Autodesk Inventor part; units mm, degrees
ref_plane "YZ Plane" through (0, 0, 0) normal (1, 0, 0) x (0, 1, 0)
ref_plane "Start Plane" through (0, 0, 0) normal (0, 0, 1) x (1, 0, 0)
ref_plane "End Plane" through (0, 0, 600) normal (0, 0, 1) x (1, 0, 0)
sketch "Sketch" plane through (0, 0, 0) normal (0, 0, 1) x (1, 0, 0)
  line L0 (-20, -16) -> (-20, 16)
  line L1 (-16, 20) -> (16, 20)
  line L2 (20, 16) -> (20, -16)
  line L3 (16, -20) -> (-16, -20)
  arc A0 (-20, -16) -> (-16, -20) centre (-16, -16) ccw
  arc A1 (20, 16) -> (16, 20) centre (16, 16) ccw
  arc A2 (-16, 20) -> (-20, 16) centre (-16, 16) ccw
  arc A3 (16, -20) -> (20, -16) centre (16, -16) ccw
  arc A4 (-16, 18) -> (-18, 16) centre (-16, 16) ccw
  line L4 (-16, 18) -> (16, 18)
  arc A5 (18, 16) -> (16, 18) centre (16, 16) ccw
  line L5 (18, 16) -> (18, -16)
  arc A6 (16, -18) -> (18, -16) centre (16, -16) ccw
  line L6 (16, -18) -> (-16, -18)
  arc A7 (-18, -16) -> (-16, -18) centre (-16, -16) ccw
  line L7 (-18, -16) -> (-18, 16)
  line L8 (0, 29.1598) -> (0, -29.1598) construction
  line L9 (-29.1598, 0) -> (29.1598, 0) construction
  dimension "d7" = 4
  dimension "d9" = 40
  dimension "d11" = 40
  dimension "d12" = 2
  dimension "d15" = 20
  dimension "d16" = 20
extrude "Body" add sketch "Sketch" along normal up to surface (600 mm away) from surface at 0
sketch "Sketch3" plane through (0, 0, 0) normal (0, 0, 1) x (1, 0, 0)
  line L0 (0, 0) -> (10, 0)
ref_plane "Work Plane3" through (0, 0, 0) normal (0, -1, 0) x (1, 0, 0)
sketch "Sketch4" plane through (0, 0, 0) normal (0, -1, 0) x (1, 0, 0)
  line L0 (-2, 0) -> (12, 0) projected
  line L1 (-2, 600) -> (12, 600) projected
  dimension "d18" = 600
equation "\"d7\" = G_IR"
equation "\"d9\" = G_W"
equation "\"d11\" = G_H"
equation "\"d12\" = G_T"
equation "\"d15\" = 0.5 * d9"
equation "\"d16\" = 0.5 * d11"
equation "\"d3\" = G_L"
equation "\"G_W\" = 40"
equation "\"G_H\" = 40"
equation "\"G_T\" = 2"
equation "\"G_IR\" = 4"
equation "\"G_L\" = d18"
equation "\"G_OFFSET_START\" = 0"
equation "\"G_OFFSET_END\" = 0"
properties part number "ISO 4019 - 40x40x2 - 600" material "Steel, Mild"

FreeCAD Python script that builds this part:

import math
import FreeCAD as App
import Part
import Sketcher
Q = App.Units.Quantity

doc = App.newDocument("Part")
params = doc.addObject("Spreadsheet::Sheet", "Params")
for row, (alias, value) in enumerate([
    ("sketch1_radius", "4 mm"),
    ("sketch1_radius2", "2 mm"),
    ("pad1_length", "600 mm"),
], start=1):
    params.set(f"A{row}", alias)
    params.set(f"B{row}", "=" + value)
    params.setAlias(f"B{row}", alias)

body = doc.addObject("PartDesign::Body", "Body")

# Sketch on XY plane
sketch1 = body.newObject("Sketcher::SketchObject", "Sketch")
sketch1.AttachmentSupport = (doc.getObject("XY_Plane"), [""])
sketch1.MapMode = "FlatFace"
sketch1.addGeometry(Part.LineSegment(App.Vector(-20, 16, 0), App.Vector(-20, -16, 0)), False)
sketch1.addGeometry(Part.ArcOfCircle(Part.Circle(App.Vector(-16, -16, 0), App.Vector(0, 0, 1), 4), math.radians(180), math.radians(270)), False)
sketch1.addGeometry(Part.LineSegment(App.Vector(-16, -20, 0), App.Vector(16, -20, 0)), False)
sketch1.addGeometry(Part.ArcOfCircle(Part.Circle(App.Vector(16, -16, 0), App.Vector(0, 0, 1), 4), math.radians(-90), math.radians(0)), False)
sketch1.addGeometry(Part.LineSegment(App.Vector(20, -16, 0), App.Vector(20, 16, 0)), False)
sketch1.addGeometry(Part.ArcOfCircle(Part.Circle(App.Vector(16, 16, 0), App.Vector(0, 0, 1), 4), math.radians(0), math.radians(90)), False)
sketch1.addGeometry(Part.LineSegment(App.Vector(16, 20, 0), App.Vector(-16, 20, 0)), False)
sketch1.addGeometry(Part.ArcOfCircle(Part.Circle(App.Vector(-16, 16, 0), App.Vector(0, 0, 1), 4), math.radians(90), math.radians(180)), False)
sketch1.addGeometry(Part.ArcOfCircle(Part.Circle(App.Vector(-16, 16, 0), App.Vector(0, 0, 1), 2), math.radians(90), math.radians(180)), False)
sketch1.addGeometry(Part.LineSegment(App.Vector(-16, 18, 0), App.Vector(16, 18, 0)), False)
sketch1.addGeometry(Part.ArcOfCircle(Part.Circle(App.Vector(16, 16, 0), App.Vector(0, 0, 1), 2), math.radians(0), math.radians(90)), False)
sketch1.addGeometry(Part.LineSegment(App.Vector(18, 16, 0), App.Vector(18, -16, 0)), False)
sketch1.addGeometry(Part.ArcOfCircle(Part.Circle(App.Vector(16, -16, 0), App.Vector(0, 0, 1), 2), math.radians(-90), math.radians(0)), False)
sketch1.addGeometry(Part.LineSegment(App.Vector(16, -18, 0), App.Vector(-16, -18, 0)), False)
sketch1.addGeometry(Part.ArcOfCircle(Part.Circle(App.Vector(-16, -16, 0), App.Vector(0, 0, 1), 2), math.radians(180), math.radians(270)), False)
sketch1.addGeometry(Part.LineSegment(App.Vector(-18, -16, 0), App.Vector(-18, 16, 0)), False)
sketch1.addConstraint(Sketcher.Constraint("Tangent", 0, 2, 1, 1))
sketch1.addConstraint(Sketcher.Constraint("Tangent", 1, 2, 2, 1))
sketch1.addConstraint(Sketcher.Constraint("Tangent", 2, 2, 3, 1))
sketch1.addConstraint(Sketcher.Constraint("Tangent", 3, 2, 4, 1))
sketch1.addConstraint(Sketcher.Constraint("Tangent", 4, 2, 5, 1))
sketch1.addConstraint(Sketcher.Constraint("Tangent", 5, 2, 6, 1))
sketch1.addConstraint(Sketcher.Constraint("Tangent", 6, 2, 7, 1))
sketch1.addConstraint(Sketcher.Constraint("Tangent", 7, 2, 0, 1))
sketch1.addConstraint(Sketcher.Constraint("Tangent", 8, 1, 9, 1))
sketch1.addConstraint(Sketcher.Constraint("Tangent", 9, 2, 10, 2))
sketch1.addConstraint(Sketcher.Constraint("Tangent", 10, 1, 11, 1))
sketch1.addConstraint(Sketcher.Constraint("Tangent", 11, 2, 12, 2))
sketch1.addConstraint(Sketcher.Constraint("Tangent", 12, 1, 13, 1))
sketch1.addConstraint(Sketcher.Constraint("Tangent", 13, 2, 14, 2))
sketch1.addConstraint(Sketcher.Constraint("Tangent", 14, 1, 15, 1))
sketch1.addConstraint(Sketcher.Constraint("Tangent", 15, 2, 8, 2))
sketch1.addConstraint(Sketcher.Constraint("Vertical", 0))
sketch1.addConstraint(Sketcher.Constraint("Horizontal", 2))
sketch1.addConstraint(Sketcher.Constraint("Vertical", 4))
sketch1.addConstraint(Sketcher.Constraint("Horizontal", 6))
sketch1.addConstraint(Sketcher.Constraint("Horizontal", 9))
sketch1.addConstraint(Sketcher.Constraint("Vertical", 11))
sketch1.addConstraint(Sketcher.Constraint("Horizontal", 13))
sketch1.addConstraint(Sketcher.Constraint("Vertical", 15))
sketch1.addConstraint(Sketcher.Constraint("Coincident", 8, 3, 7, 3))
sketch1.addConstraint(Sketcher.Constraint("Coincident", 10, 3, 5, 3))
sketch1.addConstraint(Sketcher.Constraint("Coincident", 12, 3, 3, 3))
sketch1.addConstraint(Sketcher.Constraint("Equal", 1, 3))
sketch1.addConstraint(Sketcher.Constraint("Equal", 3, 5))
sketch1.addConstraint(Sketcher.Constraint("Equal", 5, 7))
sketch1.addConstraint(Sketcher.Constraint("Equal", 12, 14))
sketch1.addConstraint(Sketcher.Constraint("Symmetric", 1, 3, 5, 3, -1, 1))
sketch1.addConstraint(Sketcher.Constraint("Equal", 13, 0))
sketch1.addConstraint(Sketcher.Constraint("Radius", 1, Q("4 mm")))
sketch1.addConstraint(Sketcher.Constraint("Radius", 8, Q("2 mm")))
sketch1.addConstraint(Sketcher.Constraint("DistanceX", 0, 2, -1, 1, Q("20 mm")))
sketch1.setExpression("Constraints[33]", "Params.sketch1_radius")
sketch1.setExpression("Constraints[34]", "Params.sketch1_radius2")
pad1 = body.newObject("PartDesign::Pad", "Pad")
pad1.Profile = sketch1
pad1.setExpression("Length", "Params.pad1_length")

doc.recompute()
